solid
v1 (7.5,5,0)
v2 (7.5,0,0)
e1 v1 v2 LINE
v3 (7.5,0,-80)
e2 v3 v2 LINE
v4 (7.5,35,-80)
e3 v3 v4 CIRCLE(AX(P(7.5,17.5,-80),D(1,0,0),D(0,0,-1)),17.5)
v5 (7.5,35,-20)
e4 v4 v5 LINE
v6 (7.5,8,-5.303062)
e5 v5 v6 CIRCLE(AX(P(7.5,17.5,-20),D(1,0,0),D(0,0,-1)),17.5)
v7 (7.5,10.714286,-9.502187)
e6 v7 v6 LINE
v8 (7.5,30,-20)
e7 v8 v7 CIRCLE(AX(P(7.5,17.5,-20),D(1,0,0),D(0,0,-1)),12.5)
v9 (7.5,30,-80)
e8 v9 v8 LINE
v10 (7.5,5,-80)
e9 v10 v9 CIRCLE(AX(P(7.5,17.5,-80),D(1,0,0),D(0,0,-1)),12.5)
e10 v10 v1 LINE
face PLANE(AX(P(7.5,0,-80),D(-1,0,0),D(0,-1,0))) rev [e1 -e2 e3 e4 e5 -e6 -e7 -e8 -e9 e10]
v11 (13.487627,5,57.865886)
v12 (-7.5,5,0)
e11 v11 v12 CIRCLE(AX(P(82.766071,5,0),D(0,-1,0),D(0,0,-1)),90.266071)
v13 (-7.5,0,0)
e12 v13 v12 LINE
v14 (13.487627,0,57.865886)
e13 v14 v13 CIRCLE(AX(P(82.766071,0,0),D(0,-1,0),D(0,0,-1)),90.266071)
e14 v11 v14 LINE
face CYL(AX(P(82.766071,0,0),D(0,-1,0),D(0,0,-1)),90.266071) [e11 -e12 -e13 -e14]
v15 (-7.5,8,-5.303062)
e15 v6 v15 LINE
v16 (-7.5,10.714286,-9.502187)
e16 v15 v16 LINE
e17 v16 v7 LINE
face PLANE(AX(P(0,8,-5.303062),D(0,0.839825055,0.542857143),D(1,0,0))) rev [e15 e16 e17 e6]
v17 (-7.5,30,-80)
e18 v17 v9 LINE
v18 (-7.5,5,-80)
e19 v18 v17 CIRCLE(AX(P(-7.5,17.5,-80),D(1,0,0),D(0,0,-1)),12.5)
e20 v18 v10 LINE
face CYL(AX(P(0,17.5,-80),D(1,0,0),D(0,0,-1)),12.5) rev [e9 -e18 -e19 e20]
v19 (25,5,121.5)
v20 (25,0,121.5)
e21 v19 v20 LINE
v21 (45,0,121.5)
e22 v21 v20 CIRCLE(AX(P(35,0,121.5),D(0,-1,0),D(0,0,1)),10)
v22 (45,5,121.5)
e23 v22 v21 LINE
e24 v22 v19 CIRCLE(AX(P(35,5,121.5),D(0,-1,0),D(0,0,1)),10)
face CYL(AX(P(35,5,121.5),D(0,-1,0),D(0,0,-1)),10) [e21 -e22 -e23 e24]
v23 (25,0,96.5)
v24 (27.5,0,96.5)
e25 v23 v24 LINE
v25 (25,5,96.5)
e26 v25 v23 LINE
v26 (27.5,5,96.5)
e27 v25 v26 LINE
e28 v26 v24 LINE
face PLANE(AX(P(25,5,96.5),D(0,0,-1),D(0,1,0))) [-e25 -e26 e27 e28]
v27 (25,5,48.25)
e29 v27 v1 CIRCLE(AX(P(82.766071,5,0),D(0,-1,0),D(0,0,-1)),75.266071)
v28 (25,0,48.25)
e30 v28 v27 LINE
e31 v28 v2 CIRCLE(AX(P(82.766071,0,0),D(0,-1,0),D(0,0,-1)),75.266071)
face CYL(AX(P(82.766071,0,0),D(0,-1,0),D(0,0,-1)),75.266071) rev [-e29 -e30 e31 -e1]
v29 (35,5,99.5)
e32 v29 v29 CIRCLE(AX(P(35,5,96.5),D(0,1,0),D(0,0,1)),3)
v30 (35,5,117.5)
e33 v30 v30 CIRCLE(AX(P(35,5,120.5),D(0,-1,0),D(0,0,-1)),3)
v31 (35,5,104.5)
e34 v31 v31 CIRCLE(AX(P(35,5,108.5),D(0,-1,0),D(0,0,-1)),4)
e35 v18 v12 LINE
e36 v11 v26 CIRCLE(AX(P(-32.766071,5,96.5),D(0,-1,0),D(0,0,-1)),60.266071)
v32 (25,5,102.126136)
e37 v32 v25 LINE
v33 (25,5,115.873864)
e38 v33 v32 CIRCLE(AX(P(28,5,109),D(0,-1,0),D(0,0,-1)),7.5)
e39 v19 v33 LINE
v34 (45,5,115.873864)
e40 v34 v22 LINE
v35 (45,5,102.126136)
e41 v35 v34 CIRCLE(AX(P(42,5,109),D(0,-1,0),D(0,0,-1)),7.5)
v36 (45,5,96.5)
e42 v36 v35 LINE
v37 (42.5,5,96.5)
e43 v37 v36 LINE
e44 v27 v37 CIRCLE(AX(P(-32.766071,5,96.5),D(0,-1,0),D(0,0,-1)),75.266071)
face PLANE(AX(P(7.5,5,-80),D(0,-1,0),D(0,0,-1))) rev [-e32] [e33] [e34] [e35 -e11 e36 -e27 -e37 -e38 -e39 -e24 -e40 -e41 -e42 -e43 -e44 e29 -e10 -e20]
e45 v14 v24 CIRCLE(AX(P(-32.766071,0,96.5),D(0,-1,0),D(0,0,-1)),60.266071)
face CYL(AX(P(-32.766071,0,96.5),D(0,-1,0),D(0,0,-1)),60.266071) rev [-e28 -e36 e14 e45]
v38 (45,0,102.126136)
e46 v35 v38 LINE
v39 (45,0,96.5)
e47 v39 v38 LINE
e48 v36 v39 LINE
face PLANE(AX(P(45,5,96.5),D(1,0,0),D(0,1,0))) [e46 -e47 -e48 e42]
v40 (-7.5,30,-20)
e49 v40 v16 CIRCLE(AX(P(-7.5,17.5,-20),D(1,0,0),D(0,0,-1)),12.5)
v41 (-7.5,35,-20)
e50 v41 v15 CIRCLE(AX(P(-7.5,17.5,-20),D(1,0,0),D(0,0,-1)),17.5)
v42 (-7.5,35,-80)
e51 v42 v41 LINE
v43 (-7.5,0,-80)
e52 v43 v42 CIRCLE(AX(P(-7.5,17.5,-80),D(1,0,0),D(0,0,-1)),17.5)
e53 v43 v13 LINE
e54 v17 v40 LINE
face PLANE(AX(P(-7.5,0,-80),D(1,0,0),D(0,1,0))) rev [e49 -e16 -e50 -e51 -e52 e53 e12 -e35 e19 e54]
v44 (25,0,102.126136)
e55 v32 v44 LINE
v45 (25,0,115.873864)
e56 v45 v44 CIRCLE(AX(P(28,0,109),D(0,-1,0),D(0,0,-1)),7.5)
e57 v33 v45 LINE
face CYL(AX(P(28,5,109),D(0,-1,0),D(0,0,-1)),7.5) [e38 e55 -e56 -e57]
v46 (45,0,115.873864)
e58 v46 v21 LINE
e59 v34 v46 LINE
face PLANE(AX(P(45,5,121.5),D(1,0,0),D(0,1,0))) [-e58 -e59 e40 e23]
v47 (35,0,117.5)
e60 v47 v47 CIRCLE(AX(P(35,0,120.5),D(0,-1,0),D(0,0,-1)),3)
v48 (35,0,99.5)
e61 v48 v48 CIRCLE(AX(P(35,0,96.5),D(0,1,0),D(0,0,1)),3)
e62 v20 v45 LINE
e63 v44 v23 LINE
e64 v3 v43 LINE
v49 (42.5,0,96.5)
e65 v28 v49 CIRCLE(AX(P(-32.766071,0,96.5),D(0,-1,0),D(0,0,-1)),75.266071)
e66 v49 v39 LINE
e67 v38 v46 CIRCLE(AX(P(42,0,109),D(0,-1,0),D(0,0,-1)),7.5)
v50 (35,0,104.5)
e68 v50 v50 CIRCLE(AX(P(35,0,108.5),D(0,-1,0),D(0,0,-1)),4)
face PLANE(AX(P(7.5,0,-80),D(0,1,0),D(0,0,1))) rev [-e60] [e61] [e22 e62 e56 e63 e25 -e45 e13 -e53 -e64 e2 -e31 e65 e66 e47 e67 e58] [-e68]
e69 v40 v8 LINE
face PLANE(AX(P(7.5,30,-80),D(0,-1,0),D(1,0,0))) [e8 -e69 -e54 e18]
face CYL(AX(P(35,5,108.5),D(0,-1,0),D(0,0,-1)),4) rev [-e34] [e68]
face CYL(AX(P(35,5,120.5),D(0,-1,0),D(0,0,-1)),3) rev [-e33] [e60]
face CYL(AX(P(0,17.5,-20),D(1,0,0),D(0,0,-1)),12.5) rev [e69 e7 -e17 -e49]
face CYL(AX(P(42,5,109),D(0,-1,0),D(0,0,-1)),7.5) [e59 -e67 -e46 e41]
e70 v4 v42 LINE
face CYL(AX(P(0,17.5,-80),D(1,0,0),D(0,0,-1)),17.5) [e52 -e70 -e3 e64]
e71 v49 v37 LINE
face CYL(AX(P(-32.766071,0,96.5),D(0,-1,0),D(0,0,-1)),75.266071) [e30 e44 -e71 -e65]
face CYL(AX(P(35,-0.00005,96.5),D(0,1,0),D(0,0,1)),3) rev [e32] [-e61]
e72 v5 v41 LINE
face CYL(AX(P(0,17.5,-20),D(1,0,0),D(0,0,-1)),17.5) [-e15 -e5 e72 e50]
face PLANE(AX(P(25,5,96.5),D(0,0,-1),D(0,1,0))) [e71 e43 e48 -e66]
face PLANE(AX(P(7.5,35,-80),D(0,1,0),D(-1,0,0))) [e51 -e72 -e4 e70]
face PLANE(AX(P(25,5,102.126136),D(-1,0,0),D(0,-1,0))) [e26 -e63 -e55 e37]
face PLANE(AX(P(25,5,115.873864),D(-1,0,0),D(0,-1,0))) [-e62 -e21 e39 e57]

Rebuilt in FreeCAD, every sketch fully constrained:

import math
import FreeCAD as App
import Part
import Sketcher

V = App.Vector
Q = App.Units.Quantity


def add_polygon(sketch, points):
    """Adds a closed chain of lines whose ends are joined by coincident constraints."""
    first, n = sketch.GeometryCount, len(points)
    for a, b in zip(points, points[1:] + points[:1]):
        sketch.addGeometry(Part.LineSegment(App.Vector(*a, 0), App.Vector(*b, 0)), False)
    for i in range(n):
        sketch.addConstraint(Sketcher.Constraint("Coincident", first + i, 2, first + (i + 1) % n, 1))

doc = App.newDocument("Part")
body = doc.addObject("PartDesign::Body", "Body")

# Sketch on XY plane
sketch1 = body.newObject("Sketcher::SketchObject", "Sketch")
sketch1.AttachmentSupport = (doc.getObject("XY_Plane"), [""])
sketch1.MapMode = "FlatFace"
add_polygon(sketch1, [(8, 5), (8, 0), (-8, 0), (-8, 5)])  # lines 0-3
sketch1.addConstraint(Sketcher.Constraint("Vertical", 0))
sketch1.addConstraint(Sketcher.Constraint("Horizontal", 1))
sketch1.addConstraint(Sketcher.Constraint("Vertical", 2))
sketch1.addConstraint(Sketcher.Constraint("Horizontal", 3))
sketch1.addConstraint(Sketcher.Constraint("Symmetric", 0, 2, 1, 2, -1, 1))
sketch1.addConstraint(Sketcher.Constraint("DistanceX", 1, 2, 1, 1, Q("15 mm")))
sketch1.addConstraint(Sketcher.Constraint("DistanceY", 0, 2, 0, 1, Q("5 mm")))

# Sketch on YZ plane
sketch2 = body.newObject("Sketcher::SketchObject", "Sketch001")
sketch2.AttachmentSupport = (doc.getObject("YZ_Plane"), [""])
sketch2.MapMode = "FlatFace"
sketch2.addGeometry(Part.LineSegment(V(0, 0, 0), V(0, -80, 0)), False)
sketch2.addGeometry(Part.ArcOfCircle(Part.Circle(V(18, -80, 0), V(0, 0, 1), 18), math.radians(180), math.radians(360)), False)
sketch2.addGeometry(Part.LineSegment(V(35, -80, 0), V(35, -20, 0)), False)
sketch2.addGeometry(Part.ArcOfCircle(Part.Circle(V(18, -20, 0), V(0, 0, 1), 18), math.radians(0), math.radians(123)), False)
sketch2.addConstraint(Sketcher.Constraint("Tangent", 0, 2, 1, 1))
sketch2.addConstraint(Sketcher.Constraint("Tangent", 1, 2, 2, 1))
sketch2.addConstraint(Sketcher.Constraint("Tangent", 2, 2, 3, 1))
sketch2.addConstraint(Sketcher.Constraint("Vertical", 0))
sketch2.addConstraint(Sketcher.Constraint("Vertical", 2))
sketch2.addConstraint(Sketcher.Constraint("Coincident", 0, 1, -1, 1))
sketch2.addConstraint(Sketcher.Constraint("Equal", 1, 3))
sketch2.addConstraint(Sketcher.Constraint("Radius", 1, Q("17.5 mm")))
sketch2.addConstraint(Sketcher.Constraint("DistanceY", 0, 2, 0, 1, Q("80 mm")))
sketch2.addConstraint(Sketcher.Constraint("DistanceY", 2, 1, 2, 2, Q("60 mm")))
sketch2.addConstraint(Sketcher.Constraint("DistanceX", -1, 1, 3, 2, Q("8 mm")))
doc.recompute()

additivepipe = body.newObject("PartDesign::AdditivePipe", "AdditivePipe")
additivepipe.Profile = sketch1
additivepipe.Spine = (sketch2, ["Edge1", "Edge2", "Edge3", "Edge4"])

# Sketch on XY plane
sketch3 = body.newObject("Sketcher::SketchObject", "Sketch002")
sketch3.AttachmentSupport = (doc.getObject("XY_Plane"), [""])
sketch3.MapMode = "FlatFace"
add_polygon(sketch3, [(-8, 5), (-8, 0), (8, 0), (8, 5)])  # lines 0-3
sketch3.addConstraint(Sketcher.Constraint("Vertical", 0))
sketch3.addConstraint(Sketcher.Constraint("Horizontal", 1))
sketch3.addConstraint(Sketcher.Constraint("Vertical", 2))
sketch3.addConstraint(Sketcher.Constraint("Horizontal", 3))
sketch3.addConstraint(Sketcher.Constraint("Symmetric", 0, 2, 1, 2, -1, 1))
sketch3.addConstraint(Sketcher.Constraint("DistanceX", 1, 1, 1, 2, Q("15 mm")))
sketch3.addConstraint(Sketcher.Constraint("DistanceY", 0, 2, 0, 1, Q("5 mm")))

# Sketch on XZ plane
sketch4 = body.newObject("Sketcher::SketchObject", "Sketch003")
sketch4.AttachmentSupport = (doc.getObject("XZ_Plane"), [""])
sketch4.MapMode = "FlatFace"
sketch4.addGeometry(Part.ArcOfCircle(Part.Circle(V(-33, 96, 0), V(0, 0, 1), 75), math.radians(-40), math.radians(0)), False)
sketch4.addGeometry(Part.ArcOfCircle(Part.Circle(V(83, 0, 0), V(0, 0, 1), 75), math.radians(140), math.radians(180)), False)
sketch4.addConstraint(Sketcher.Constraint("Tangent", 0, 1, 1, 1))
sketch4.addConstraint(Sketcher.Constraint("Equal", 0, 1))
sketch4.addConstraint(Sketcher.Constraint("PointOnObject", 1, 3, -1))
sketch4.addConstraint(Sketcher.Constraint("PointOnObject", 1, 2, -1))
sketch4.addConstraint(Sketcher.Constraint("DistanceX", -1, 1, 0, 1, Q("25 mm")))
sketch4.addConstraint(Sketcher.Constraint("DistanceX", 1, 2, 0, 2, Q("35 mm")))
sketch4.addConstraint(Sketcher.Constraint("DistanceY", -1, 1, 0, 3, Q("96.5 mm")))
sketch4.addConstraint(Sketcher.Constraint("DistanceY", -1, 1, 0, 2, Q("96.5 mm")))
doc.recompute()

additivepipe2 = body.newObject("PartDesign::AdditivePipe", "AdditivePipe001")
additivepipe2.Profile = sketch3
additivepipe2.Spine = (sketch4, ["Edge1", "Edge2"])

# Sketch on XZ plane
sketch5 = body.newObject("Sketcher::SketchObject", "Sketch004")
sketch5.AttachmentSupport = (doc.getObject("XZ_Plane"), [""])
sketch5.MapMode = "FlatFace"
sketch5.addGeometry(Part.LineSegment(V(25, 96.5, 0), V(45, 96.5, 0)), False)
sketch5.addGeometry(Part.LineSegment(V(45, 96.5, 0), V(45, 102.1, 0)), False)
sketch5.addGeometry(Part.ArcOfCircle(Part.Circle(V(42, 109, 0), V(0, 0, 1), 7.5), math.radians(-66), math.radians(66)), False)
sketch5.addGeometry(Part.LineSegment(V(45, 115.9, 0), V(45, 121.5, 0)), False)
sketch5.addGeometry(Part.ArcOfCircle(Part.Circle(V(35, 121.5, 0), V(0, 0, 1), 10), math.radians(0), math.radians(180)), False)
sketch5.addGeometry(Part.LineSegment(V(25, 121.5, 0), V(25, 115.9, 0)), False)
sketch5.addGeometry(Part.ArcOfCircle(Part.Circle(V(28, 109, 0), V(0, 0, 1), 7.5), math.radians(114), math.radians(246)), False)
sketch5.addGeometry(Part.LineSegment(V(25, 102.1, 0), V(25, 96.5, 0)), False)
sketch5.addGeometry(Part.Circle(V(35, 108.5, 0), V(0, 0, 1), 4), False)
sketch5.addGeometry(Part.Circle(V(35, 120.5, 0), V(0, 0, 1), 3), False)
sketch5.addConstraint(Sketcher.Constraint("Coincident", 0, 2, 1, 1))
sketch5.addConstraint(Sketcher.Constraint("Coincident", 1, 2, 2, 1))
sketch5.addConstraint(Sketcher.Constraint("Coincident", 2, 2, 3, 1))
sketch5.addConstraint(Sketcher.Constraint("Tangent", 3, 2, 4, 1))
sketch5.addConstraint(Sketcher.Constraint("Tangent", 4, 2, 5, 1))
sketch5.addConstraint(Sketcher.Constraint("Coincident", 5, 2, 6, 1))
sketch5.addConstraint(Sketcher.Constraint("Coincident", 6, 2, 7, 1))
sketch5.addConstraint(Sketcher.Constraint("Coincident", 7, 2, 0, 1))
sketch5.addConstraint(Sketcher.Constraint("Horizontal", 0))
sketch5.addConstraint(Sketcher.Constraint("Vertical", 1))
sketch5.addConstraint(Sketcher.Constraint("Vertical", 3))
sketch5.addConstraint(Sketcher.Constraint("Vertical", 5))
sketch5.addConstraint(Sketcher.Constraint("Vertical", 7))
sketch5.addConstraint(Sketcher.Constraint("Equal", 2, 6))
sketch5.addConstraint(Sketcher.Constraint("Horizontal", 2, 3, 6, 3))
sketch5.addConstraint(Sketcher.Constraint("Horizontal", 2, 2, 5, 2))
sketch5.addConstraint(Sketcher.Constraint("Horizontal", 1, 2, 6, 2))
sketch5.addConstraint(Sketcher.Constraint("Vertical", 4, 3, 8, 3))
sketch5.addConstraint(Sketcher.Constraint("Vertical", 8, 3, 9, 3))
sketch5.addConstraint(Sketcher.Constraint("Vertical", 1, 2, 2, 2))
sketch5.addConstraint(Sketcher.Constraint("Equal", 1, 3))
sketch5.addConstraint(Sketcher.Constraint("Diameter", 8, Q("8 mm")))
sketch5.addConstraint(Sketcher.Constraint("Diameter", 9, Q("6 mm")))
sketch5.addConstraint(Sketcher.Constraint("Radius", 4, Q("10 mm")))
sketch5.addConstraint(Sketcher.Constraint("Radius", 2, Q("7.5 mm")))
sketch5.addConstraint(Sketcher.Constraint("DistanceX", -1, 1, 2, 3, Q("42 mm")))
sketch5.addConstraint(Sketcher.Constraint("DistanceY", -1, 1, 2, 3, Q("109 mm")))
sketch5.addConstraint(Sketcher.Constraint("DistanceX", -1, 1, 4, 3, Q("35 mm")))
sketch5.addConstraint(Sketcher.Constraint("DistanceY", 8, 3, 4, 3, Q("13 mm")))
sketch5.addConstraint(Sketcher.Constraint("DistanceY", 9, 3, 4, 3, Q("1 mm")))
sketch5.addConstraint(Sketcher.Constraint("DistanceY", 0, 2, 8, 3, Q("12 mm")))
pad1 = body.newObject("PartDesign::Pad", "Pad")
pad1.Profile = sketch5
pad1.Length = 5
pad1.Reversed = True

# Sketch on XZ plane
sketch6 = body.newObject("Sketcher::SketchObject", "Sketch005")
sketch6.AttachmentSupport = (doc.getObject("XZ_Plane"), [""])
sketch6.MapMode = "FlatFace"
sketch6.AttachmentOffset = App.Placement(V(0, 0, -5), App.Rotation())
sketch6.addGeometry(Part.Circle(V(35, 96.5, 0), V(0, 0, 1), 3), False)
sketch6.addConstraint(Sketcher.Constraint("Diameter", 0, Q("6 mm")))
sketch6.addConstraint(Sketcher.Constraint("DistanceX", -1, 1, 0, 3, Q("35 mm")))
sketch6.addConstraint(Sketcher.Constraint("DistanceY", -1, 1, 0, 3, Q("96.5 mm")))
pocket1 = body.newObject("PartDesign::Pocket", "Pocket")
pocket1.Profile = sketch6
pocket1.Type = "ThroughAll"
pocket1.Reversed = True

doc.recompute()
